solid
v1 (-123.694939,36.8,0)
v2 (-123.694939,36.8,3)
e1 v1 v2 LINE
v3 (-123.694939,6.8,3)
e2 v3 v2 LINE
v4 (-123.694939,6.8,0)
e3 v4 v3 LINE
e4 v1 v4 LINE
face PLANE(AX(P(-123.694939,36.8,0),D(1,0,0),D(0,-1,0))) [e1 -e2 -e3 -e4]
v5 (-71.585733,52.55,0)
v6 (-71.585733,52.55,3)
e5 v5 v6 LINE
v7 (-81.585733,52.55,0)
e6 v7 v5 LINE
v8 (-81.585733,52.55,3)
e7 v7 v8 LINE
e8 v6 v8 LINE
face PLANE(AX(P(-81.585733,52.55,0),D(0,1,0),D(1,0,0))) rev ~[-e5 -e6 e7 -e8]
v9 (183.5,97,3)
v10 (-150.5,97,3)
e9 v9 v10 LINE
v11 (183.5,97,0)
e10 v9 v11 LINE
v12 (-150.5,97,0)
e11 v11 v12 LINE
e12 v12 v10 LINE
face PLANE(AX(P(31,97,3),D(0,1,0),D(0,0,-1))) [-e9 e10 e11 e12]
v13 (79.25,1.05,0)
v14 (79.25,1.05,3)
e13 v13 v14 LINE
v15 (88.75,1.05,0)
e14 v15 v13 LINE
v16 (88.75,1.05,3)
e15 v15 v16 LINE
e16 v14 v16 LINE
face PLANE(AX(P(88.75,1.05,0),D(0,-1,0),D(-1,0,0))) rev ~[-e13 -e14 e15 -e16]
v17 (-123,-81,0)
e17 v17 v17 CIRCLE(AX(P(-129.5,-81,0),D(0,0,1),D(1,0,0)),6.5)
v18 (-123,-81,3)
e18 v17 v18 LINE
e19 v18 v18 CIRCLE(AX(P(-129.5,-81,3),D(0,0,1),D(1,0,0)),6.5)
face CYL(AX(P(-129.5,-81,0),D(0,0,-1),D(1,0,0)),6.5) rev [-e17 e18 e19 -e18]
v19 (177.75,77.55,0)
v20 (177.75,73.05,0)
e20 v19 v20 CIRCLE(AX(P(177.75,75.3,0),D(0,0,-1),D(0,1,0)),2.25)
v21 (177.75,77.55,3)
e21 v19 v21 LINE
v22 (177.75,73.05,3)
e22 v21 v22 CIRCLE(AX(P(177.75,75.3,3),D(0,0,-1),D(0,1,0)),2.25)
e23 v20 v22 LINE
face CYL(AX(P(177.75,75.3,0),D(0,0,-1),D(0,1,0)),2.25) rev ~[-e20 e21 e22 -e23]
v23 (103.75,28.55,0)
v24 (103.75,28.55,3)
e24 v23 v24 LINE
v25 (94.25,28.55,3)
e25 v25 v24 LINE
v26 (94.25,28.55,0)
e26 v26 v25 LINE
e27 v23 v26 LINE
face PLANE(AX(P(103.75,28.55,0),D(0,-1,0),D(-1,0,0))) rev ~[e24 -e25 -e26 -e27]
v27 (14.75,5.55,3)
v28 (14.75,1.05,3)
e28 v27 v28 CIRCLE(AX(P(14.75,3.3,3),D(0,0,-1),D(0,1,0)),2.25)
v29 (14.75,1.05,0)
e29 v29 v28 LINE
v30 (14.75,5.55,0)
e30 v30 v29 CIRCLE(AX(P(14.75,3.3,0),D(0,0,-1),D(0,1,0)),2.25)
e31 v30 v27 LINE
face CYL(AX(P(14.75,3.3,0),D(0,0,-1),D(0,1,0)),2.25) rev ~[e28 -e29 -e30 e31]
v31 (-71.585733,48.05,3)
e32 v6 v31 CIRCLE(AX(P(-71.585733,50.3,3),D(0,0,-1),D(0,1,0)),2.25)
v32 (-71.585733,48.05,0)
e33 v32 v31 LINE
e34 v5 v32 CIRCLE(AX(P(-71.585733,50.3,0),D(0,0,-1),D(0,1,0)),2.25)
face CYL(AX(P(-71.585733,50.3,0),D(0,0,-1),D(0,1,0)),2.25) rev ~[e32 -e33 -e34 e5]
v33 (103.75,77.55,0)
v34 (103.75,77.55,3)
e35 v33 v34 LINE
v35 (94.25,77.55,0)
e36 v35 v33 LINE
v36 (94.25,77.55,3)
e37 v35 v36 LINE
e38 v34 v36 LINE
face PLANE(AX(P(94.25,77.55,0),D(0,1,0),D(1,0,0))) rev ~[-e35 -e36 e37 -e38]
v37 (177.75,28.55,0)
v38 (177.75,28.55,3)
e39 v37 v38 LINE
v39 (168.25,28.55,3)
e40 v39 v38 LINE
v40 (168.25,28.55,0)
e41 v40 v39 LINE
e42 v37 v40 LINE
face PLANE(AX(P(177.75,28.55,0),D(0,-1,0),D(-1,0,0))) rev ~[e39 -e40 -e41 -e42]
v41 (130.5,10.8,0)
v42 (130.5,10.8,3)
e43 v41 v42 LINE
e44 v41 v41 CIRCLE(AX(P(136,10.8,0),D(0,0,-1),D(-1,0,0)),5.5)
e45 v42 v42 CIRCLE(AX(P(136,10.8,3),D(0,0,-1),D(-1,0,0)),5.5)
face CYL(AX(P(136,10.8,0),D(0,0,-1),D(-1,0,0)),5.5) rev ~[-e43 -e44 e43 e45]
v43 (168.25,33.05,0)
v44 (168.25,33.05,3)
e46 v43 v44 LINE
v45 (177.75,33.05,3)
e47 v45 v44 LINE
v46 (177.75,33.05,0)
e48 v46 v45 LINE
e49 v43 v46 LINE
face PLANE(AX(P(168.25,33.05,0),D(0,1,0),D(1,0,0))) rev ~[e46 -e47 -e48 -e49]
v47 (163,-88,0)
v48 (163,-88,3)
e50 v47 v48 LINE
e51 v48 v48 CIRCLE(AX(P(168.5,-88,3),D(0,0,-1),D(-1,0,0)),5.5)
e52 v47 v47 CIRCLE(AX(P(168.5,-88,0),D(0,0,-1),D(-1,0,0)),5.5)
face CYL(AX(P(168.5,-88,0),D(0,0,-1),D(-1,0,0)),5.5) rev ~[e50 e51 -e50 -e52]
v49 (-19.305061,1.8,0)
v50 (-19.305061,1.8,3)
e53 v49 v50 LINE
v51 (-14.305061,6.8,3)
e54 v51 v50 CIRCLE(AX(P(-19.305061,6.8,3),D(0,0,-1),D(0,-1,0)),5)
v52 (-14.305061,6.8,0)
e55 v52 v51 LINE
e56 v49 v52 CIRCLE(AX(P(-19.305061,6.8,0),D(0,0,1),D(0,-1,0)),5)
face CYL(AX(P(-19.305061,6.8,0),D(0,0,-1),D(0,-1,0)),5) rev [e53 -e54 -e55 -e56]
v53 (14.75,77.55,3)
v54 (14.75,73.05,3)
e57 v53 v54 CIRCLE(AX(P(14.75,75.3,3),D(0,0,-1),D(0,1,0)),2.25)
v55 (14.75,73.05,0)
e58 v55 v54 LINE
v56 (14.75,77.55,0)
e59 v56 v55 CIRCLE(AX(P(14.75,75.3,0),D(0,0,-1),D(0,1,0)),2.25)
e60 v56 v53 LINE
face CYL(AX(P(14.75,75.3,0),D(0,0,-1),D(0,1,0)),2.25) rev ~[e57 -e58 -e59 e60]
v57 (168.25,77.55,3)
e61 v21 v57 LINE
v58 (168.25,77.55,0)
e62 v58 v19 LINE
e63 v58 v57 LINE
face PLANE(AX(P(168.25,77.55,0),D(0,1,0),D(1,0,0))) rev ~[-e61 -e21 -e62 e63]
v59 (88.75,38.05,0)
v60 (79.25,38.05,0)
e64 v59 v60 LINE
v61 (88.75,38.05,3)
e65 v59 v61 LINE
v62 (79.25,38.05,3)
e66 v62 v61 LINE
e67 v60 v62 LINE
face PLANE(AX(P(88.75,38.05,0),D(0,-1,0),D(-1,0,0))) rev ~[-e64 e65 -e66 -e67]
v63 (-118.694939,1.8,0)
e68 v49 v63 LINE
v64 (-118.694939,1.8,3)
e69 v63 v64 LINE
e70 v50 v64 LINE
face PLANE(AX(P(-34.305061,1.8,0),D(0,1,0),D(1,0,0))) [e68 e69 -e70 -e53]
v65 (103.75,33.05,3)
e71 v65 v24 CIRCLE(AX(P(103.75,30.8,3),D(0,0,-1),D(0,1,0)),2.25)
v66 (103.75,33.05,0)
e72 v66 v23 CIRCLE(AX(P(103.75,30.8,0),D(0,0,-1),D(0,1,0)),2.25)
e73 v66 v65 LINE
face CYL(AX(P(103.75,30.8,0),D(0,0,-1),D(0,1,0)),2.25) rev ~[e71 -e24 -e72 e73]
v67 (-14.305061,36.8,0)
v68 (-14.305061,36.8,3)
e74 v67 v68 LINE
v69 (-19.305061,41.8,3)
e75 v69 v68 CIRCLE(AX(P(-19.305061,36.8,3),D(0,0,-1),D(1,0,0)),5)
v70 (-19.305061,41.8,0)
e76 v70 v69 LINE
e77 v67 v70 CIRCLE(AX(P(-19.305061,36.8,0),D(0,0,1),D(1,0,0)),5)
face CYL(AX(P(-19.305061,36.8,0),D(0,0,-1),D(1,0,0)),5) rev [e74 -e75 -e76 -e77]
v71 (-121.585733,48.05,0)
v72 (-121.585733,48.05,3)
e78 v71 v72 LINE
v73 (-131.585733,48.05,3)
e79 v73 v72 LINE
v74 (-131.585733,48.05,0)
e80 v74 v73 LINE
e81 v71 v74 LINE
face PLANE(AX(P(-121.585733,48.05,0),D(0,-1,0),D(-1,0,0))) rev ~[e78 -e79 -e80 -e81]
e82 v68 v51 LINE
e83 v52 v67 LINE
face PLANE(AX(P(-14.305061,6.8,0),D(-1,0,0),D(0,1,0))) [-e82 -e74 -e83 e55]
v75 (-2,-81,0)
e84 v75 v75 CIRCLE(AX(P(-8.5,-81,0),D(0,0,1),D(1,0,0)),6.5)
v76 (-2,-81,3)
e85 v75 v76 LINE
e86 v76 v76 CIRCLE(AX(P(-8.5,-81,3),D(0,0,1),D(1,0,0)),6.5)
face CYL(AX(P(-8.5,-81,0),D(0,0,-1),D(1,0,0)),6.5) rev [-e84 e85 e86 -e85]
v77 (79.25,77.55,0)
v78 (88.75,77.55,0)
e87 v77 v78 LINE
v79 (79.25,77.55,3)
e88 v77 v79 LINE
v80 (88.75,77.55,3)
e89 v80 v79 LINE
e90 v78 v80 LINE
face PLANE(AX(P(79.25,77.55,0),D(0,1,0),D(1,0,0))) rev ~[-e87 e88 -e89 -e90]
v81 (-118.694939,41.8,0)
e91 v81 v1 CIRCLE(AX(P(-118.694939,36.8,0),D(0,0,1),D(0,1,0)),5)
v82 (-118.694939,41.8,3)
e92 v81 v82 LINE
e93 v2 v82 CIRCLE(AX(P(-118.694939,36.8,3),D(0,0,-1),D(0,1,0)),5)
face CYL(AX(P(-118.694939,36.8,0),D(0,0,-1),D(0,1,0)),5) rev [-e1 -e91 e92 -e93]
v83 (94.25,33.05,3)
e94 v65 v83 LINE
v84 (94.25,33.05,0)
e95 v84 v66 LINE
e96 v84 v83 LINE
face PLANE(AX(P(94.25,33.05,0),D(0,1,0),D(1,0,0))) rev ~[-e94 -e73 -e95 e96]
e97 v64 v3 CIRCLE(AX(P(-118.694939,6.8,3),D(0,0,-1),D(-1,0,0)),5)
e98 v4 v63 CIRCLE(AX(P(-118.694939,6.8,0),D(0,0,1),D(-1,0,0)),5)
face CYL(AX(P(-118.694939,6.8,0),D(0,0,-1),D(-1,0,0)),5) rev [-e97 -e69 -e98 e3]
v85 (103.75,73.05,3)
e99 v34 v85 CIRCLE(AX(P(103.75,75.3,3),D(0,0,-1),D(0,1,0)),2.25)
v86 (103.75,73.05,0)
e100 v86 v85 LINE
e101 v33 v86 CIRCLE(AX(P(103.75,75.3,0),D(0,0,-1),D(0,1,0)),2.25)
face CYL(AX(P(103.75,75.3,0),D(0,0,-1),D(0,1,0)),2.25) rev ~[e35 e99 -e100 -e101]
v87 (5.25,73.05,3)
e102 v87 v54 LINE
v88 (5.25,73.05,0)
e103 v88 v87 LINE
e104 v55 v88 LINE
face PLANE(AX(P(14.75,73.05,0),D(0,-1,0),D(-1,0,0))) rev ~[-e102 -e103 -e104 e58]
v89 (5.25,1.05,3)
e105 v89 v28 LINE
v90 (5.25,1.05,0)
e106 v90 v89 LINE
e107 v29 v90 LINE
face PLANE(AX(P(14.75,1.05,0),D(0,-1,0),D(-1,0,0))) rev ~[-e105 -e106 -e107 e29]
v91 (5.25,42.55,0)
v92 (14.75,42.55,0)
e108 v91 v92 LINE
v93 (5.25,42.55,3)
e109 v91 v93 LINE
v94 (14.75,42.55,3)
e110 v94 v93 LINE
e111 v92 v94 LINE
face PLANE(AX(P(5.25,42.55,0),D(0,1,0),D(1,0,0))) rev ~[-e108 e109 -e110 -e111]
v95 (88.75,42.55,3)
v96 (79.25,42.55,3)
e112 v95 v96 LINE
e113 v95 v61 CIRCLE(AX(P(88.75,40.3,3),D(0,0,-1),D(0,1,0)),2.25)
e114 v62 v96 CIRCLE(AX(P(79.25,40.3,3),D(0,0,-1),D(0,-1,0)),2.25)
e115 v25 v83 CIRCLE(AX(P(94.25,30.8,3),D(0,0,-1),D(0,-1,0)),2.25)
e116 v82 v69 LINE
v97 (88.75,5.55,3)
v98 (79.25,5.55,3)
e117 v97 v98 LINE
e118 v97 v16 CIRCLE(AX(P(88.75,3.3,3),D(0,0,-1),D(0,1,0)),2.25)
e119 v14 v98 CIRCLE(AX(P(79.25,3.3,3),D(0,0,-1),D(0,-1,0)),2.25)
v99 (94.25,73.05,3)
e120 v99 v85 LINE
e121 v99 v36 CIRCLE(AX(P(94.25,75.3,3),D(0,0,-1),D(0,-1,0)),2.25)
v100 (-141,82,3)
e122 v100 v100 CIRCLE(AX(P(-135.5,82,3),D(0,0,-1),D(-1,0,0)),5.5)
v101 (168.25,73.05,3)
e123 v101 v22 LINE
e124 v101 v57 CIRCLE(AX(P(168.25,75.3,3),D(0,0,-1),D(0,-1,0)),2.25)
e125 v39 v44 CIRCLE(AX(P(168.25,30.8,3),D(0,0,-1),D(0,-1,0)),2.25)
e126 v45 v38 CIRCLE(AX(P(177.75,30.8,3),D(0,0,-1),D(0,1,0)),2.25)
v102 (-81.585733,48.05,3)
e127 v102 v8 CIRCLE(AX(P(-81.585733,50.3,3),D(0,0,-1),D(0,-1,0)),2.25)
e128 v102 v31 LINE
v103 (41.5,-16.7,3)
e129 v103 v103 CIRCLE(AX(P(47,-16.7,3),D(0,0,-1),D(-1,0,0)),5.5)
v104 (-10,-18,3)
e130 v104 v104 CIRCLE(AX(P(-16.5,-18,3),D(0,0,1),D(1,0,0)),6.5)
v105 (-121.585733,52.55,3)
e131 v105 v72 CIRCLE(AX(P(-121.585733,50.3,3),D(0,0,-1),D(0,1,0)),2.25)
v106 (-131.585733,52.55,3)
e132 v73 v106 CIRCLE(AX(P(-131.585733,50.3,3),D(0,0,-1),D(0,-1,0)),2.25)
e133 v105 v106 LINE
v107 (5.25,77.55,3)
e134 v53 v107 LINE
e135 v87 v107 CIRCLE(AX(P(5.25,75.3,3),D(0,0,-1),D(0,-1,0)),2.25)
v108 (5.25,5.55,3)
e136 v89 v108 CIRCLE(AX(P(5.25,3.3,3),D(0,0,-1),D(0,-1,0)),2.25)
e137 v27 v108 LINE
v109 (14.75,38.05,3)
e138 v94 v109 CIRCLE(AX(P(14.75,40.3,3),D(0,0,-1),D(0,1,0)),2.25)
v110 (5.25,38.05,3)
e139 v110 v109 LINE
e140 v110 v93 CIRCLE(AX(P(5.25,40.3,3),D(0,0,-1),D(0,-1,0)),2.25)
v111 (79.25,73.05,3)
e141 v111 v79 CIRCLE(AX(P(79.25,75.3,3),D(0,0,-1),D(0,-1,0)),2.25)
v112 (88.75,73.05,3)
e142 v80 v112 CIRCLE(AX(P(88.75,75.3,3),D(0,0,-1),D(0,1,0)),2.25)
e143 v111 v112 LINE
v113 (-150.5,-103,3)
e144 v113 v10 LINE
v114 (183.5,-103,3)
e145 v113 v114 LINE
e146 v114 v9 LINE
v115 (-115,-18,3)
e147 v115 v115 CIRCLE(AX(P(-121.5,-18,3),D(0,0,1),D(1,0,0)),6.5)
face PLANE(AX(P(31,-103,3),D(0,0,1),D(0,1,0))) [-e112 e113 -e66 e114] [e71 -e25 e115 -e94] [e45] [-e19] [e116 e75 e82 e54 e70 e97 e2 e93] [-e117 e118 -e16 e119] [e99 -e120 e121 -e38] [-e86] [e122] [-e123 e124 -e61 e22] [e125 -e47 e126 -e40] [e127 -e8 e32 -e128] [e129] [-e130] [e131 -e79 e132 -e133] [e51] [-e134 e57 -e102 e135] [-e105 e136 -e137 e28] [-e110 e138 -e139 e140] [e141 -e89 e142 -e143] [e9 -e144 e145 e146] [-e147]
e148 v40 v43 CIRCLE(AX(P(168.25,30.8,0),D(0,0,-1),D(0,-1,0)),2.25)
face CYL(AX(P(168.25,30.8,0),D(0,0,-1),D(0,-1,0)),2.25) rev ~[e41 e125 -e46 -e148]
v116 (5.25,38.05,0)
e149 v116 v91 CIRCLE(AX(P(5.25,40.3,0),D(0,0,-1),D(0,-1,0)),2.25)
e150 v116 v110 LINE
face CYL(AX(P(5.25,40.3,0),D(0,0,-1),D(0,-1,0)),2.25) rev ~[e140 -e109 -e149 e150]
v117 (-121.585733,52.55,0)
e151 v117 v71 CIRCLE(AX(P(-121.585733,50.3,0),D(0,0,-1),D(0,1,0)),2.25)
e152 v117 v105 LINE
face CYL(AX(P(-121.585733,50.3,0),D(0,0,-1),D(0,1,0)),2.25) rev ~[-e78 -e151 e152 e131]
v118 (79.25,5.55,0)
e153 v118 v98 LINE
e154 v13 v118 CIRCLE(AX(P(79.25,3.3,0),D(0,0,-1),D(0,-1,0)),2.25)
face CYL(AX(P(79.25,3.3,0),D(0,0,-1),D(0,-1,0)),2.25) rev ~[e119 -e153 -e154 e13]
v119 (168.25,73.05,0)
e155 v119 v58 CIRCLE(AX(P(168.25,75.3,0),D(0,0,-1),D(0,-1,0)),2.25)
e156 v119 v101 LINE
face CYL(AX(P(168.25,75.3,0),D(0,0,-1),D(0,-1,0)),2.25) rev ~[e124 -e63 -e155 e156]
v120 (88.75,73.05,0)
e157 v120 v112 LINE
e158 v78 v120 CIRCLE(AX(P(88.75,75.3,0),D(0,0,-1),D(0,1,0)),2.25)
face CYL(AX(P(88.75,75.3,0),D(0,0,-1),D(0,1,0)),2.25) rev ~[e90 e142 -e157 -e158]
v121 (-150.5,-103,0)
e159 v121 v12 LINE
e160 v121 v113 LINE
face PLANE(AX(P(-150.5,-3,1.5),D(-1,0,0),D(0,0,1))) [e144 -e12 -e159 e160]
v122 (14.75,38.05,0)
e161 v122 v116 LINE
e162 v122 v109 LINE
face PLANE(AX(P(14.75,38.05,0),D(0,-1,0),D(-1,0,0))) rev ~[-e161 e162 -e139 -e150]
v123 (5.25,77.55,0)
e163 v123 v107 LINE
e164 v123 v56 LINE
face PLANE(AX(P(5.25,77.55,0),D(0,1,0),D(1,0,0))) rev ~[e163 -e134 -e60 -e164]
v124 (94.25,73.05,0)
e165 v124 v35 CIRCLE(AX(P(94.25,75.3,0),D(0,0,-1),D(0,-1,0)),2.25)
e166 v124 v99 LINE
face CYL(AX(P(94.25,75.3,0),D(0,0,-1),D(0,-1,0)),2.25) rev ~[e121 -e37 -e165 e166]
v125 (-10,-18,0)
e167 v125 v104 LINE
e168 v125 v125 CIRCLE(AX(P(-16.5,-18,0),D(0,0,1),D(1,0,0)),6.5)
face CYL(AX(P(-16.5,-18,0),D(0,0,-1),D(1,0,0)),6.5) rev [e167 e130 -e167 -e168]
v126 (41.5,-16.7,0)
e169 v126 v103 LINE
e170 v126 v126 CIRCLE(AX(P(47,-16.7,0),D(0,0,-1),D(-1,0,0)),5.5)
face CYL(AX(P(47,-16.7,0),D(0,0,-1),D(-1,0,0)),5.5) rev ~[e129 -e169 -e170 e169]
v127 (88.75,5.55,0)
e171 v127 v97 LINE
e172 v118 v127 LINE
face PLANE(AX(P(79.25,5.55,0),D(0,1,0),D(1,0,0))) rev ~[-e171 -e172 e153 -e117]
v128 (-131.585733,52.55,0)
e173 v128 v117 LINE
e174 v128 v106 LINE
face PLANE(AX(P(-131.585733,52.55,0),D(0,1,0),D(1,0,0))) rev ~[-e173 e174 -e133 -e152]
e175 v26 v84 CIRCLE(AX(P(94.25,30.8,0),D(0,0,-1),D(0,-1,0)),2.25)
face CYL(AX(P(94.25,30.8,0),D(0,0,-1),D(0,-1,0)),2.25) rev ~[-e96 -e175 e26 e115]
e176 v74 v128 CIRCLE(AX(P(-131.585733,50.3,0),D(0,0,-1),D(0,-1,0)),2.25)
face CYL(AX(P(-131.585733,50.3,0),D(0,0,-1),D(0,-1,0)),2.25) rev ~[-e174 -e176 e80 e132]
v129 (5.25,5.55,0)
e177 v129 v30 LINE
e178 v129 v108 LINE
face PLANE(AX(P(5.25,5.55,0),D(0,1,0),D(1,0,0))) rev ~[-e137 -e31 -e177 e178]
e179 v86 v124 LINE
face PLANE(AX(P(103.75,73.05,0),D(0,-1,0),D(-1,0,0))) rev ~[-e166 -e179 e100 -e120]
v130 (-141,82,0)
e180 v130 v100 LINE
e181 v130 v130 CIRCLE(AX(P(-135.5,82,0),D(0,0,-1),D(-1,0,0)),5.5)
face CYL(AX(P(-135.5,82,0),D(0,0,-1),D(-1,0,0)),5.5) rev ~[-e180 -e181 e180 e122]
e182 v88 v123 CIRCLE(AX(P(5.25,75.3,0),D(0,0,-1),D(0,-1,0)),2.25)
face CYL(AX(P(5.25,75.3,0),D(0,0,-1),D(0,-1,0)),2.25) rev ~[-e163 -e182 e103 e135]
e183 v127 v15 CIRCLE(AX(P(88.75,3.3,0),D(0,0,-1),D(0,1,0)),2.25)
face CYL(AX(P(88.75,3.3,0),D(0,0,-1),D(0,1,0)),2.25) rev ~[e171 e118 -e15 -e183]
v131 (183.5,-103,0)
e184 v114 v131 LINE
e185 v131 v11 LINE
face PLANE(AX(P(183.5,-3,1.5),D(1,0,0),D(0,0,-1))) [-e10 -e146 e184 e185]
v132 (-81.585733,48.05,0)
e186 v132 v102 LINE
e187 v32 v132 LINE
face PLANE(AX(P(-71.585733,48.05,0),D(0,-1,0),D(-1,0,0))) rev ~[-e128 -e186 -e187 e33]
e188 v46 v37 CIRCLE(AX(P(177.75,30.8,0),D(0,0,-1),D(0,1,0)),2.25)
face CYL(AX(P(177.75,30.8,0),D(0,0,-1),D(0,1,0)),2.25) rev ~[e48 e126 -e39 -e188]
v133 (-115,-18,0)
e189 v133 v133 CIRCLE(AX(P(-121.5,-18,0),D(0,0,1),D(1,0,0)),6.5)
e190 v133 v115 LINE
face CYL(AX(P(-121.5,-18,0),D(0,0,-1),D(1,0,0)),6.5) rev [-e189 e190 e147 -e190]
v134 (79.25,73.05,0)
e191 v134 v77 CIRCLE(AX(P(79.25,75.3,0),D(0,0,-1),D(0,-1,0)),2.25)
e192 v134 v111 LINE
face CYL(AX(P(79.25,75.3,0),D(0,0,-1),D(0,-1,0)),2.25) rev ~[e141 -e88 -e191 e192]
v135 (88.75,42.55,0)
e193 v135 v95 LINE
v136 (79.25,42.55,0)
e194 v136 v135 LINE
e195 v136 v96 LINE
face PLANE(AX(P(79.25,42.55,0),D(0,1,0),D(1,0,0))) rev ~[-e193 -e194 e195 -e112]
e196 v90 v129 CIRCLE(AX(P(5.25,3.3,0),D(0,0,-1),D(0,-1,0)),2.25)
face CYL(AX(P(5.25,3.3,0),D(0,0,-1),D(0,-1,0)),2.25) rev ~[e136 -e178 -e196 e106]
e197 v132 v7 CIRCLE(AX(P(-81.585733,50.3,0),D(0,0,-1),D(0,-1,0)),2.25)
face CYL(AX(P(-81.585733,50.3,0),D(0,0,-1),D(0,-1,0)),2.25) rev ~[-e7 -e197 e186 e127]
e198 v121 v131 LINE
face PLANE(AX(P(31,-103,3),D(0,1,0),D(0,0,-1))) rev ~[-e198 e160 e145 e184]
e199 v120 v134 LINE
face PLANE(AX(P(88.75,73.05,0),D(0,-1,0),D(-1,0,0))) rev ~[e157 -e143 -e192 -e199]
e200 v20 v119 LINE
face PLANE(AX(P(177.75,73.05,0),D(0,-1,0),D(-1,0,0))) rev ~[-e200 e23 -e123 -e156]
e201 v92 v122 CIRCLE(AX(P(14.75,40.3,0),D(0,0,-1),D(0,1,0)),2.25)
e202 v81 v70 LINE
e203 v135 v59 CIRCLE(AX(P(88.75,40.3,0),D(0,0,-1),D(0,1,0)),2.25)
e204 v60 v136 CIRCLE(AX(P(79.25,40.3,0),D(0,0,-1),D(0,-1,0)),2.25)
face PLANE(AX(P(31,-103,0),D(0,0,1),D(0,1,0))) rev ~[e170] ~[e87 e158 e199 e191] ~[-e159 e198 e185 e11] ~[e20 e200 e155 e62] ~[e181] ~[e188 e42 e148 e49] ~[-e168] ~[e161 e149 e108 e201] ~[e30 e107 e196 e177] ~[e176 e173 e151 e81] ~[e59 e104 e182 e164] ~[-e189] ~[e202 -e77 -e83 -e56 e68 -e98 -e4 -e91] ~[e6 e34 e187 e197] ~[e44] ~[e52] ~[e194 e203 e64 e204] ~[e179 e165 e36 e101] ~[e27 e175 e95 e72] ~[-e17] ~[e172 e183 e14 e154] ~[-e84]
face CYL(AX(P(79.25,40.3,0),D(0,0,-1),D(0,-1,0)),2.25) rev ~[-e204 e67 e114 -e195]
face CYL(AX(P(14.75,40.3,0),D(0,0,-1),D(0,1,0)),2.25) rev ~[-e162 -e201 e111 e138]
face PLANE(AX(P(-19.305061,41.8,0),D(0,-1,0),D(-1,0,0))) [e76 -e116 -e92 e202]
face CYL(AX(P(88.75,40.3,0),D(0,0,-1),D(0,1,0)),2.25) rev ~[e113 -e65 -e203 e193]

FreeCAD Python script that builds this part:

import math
import FreeCAD as App
import Part
import Sketcher
from FreeCAD import Vector


def add_polygon(sketch, points):
    """Adds a closed chain of lines whose ends are joined by coincident constraints."""
    first, n = sketch.GeometryCount, len(points)
    for a, b in zip(points, points[1:] + points[:1]):
        sketch.addGeometry(Part.LineSegment(App.Vector(*a, 0), App.Vector(*b, 0)), False)
    for i in range(n):
        sketch.addConstraint(Sketcher.Constraint("Coincident", first + i, 2, first + (i + 1) % n, 1))

doc = App.newDocument("Part")
body = doc.addObject("PartDesign::Body", "Body")

# Sketch on XY plane
sketch1 = doc.addObject("Sketcher::SketchObject", "Sketch")
body.addObject(sketch1)
sketch1.AttachmentSupport = (doc.XY_Plane, [""])
sketch1.MapMode = "FlatFace"
add_polygon(sketch1, [(-169, 97), (-169, -103), (31, -103), (31, 97)])  # lines 0-3
sketch1.addGeometry(Part.Circle(Vector(-130, -81, 0), Vector(0, 0, 1), 6), False)  # 4
sketch1.addGeometry(Part.Circle(Vector(-8, -81, 0), Vector(0, 0, 1), 6), False)  # 5
sketch1.addGeometry(Part.Circle(Vector(-122, -18, 0), Vector(0, 0, 1), 6), False)  # 6
sketch1.addGeometry(Part.Circle(Vector(-16, -18, 0), Vector(0, 0, 1), 6), False)  # 7
sketch1.addConstraint(Sketcher.Constraint("Vertical", 0))
sketch1.addConstraint(Sketcher.Constraint("Horizontal", 1))
sketch1.addConstraint(Sketcher.Constraint("Vertical", 2))
sketch1.addConstraint(Sketcher.Constraint("Horizontal", 3))
sketch1.addConstraint(Sketcher.Constraint("Equal", 4, 5))
sketch1.addConstraint(Sketcher.Constraint("Equal", 5, 6))
sketch1.addConstraint(Sketcher.Constraint("Equal", 6, 7))
sketch1.addConstraint(Sketcher.Constraint("Horizontal", 4, 3, 5, 3))
sketch1.addConstraint(Sketcher.Constraint("Horizontal", 6, 3, 7, 3))
sketch1.addConstraint(Sketcher.Constraint("Equal", 3, 0))
sketch1.addConstraint(Sketcher.Constraint("Diameter", 4, 13.0))
sketch1.addConstraint(Sketcher.Constraint("DistanceX", 1, 1, 1, 2, 200.0))
sketch1.addConstraint(Sketcher.Constraint("DistanceY", 4, 3, -1, 1, 81.0))
sketch1.addConstraint(Sketcher.Constraint("DistanceY", 6, 3, -1, 1, 18.0))
sketch1.addConstraint(Sketcher.Constraint("DistanceX", 0, 2, -1, 1, 169.0))
sketch1.addConstraint(Sketcher.Constraint("DistanceY", 0, 2, -1, 1, 103.0))
sketch1.addConstraint(Sketcher.Constraint("DistanceX", 4, 3, 5, 3, 121.0))
sketch1.addConstraint(Sketcher.Constraint("DistanceX", 4, 3, 6, 3, 8.0))
sketch1.addConstraint(Sketcher.Constraint("DistanceX", 7, 3, 5, 3, 8.0))
sketch1.addConstraint(Sketcher.Constraint("DistanceX", 4, 3, -1, 1, 129.5))
pad1 = doc.addObject("PartDesign::Pad", "Pad")
body.addObject(pad1)
pad1.Profile = sketch1
pad1.Length = 3

# Sketch on YZ plane
sketch2 = doc.addObject("Sketcher::SketchObject", "Sketch001")
body.addObject(sketch2)
sketch2.AttachmentSupport = (doc.YZ_Plane, [""])
sketch2.MapMode = "FlatFace"
sketch2.AttachmentOffset = App.Placement(Vector(0, 0, 31), App.Rotation())
add_polygon(sketch2, [(97, 3), (-103, 3), (-103, 0), (97, 0)])  # lines 0-3
sketch2.addConstraint(Sketcher.Constraint("Horizontal", 0))
sketch2.addConstraint(Sketcher.Constraint("Vertical", 1))
sketch2.addConstraint(Sketcher.Constraint("Horizontal", 2))
sketch2.addConstraint(Sketcher.Constraint("Vertical", 3))
sketch2.addConstraint(Sketcher.Constraint("PointOnObject", 1, 2, -1))
sketch2.addConstraint(Sketcher.Constraint("DistanceX", 0, 2, 0, 1, 200.0))
sketch2.addConstraint(Sketcher.Constraint("DistanceY", 1, 2, 1, 1, 3.0))
sketch2.addConstraint(Sketcher.Constraint("DistanceX", 0, 2, -1, 1, 103.0))
pad2 = doc.addObject("PartDesign::Pad", "Pad001")
body.addObject(pad2)
pad2.Profile = sketch2
pad2.Length = 152.5

# Sketch on YZ plane
sketch3 = doc.addObject("Sketcher::SketchObject", "Sketch002")
body.addObject(sketch3)
sketch3.AttachmentSupport = (doc.YZ_Plane, [""])
sketch3.MapMode = "FlatFace"
sketch3.AttachmentOffset = App.Placement(Vector(0, 0, -169), App.Rotation())
add_polygon(sketch3, [(97, 0), (-103, 0), (-103, 3), (97, 3)])  # lines 0-3
sketch3.addConstraint(Sketcher.Constraint("Horizontal", 0))
sketch3.addConstraint(Sketcher.Constraint("Vertical", 1))
sketch3.addConstraint(Sketcher.Constraint("Horizontal", 2))
sketch3.addConstraint(Sketcher.Constraint("Vertical", 3))
sketch3.addConstraint(Sketcher.Constraint("PointOnObject", 0, 2, -1))
sketch3.addConstraint(Sketcher.Constraint("DistanceX", 0, 2, 0, 1, 200.0))
sketch3.addConstraint(Sketcher.Constraint("DistanceY", 1, 1, 1, 2, 3.0))
sketch3.addConstraint(Sketcher.Constraint("DistanceX", 0, 2, -1, 1, 103.0))
pocket1 = doc.addObject("PartDesign::Pocket", "Pocket")
body.addObject(pocket1)
pocket1.Profile = sketch3
pocket1.Length = 18.5
pocket1.Reversed = True

# Sketch on XY plane
sketch4 = doc.addObject("Sketcher::SketchObject", "Sketch003")
body.addObject(sketch4)
sketch4.AttachmentSupport = (doc.XY_Plane, [""])
sketch4.MapMode = "FlatFace"
sketch4.addGeometry(Part.ArcOfCircle(Part.Circle(Vector(-19, 37, 0), Vector(0, 0, 1), 5), math.radians(0), math.radians(90)), False)
sketch4.addGeometry(Part.LineSegment(Vector(-14, 37, 0), Vector(-14, 7, 0)), False)
sketch4.addGeometry(Part.ArcOfCircle(Part.Circle(Vector(-19, 7, 0), Vector(0, 0, 1), 5), math.radians(-90), math.radians(0)), False)
sketch4.addGeometry(Part.LineSegment(Vector(-19, 2, 0), Vector(-119, 2, 0)), False)
sketch4.addGeometry(Part.ArcOfCircle(Part.Circle(Vector(-119, 7, 0), Vector(0, 0, 1), 5), math.radians(180), math.radians(270)), False)
sketch4.addGeometry(Part.LineSegment(Vector(-124, 7, 0), Vector(-124, 37, 0)), False)
sketch4.addGeometry(Part.ArcOfCircle(Part.Circle(Vector(-119, 37, 0), Vector(0, 0, 1), 5), math.radians(90), math.radians(180)), False)
sketch4.addGeometry(Part.LineSegment(Vector(-119, 42, 0), Vector(-19, 42, 0)), False)
sketch4.addConstraint(Sketcher.Constraint("Tangent", 0, 1, 1, 1))
sketch4.addConstraint(Sketcher.Constraint("Tangent", 1, 2, 2, 2))
sketch4.addConstraint(Sketcher.Constraint("Tangent", 2, 1, 3, 1))
sketch4.addConstraint(Sketcher.Constraint("Tangent", 3, 2, 4, 2))
sketch4.addConstraint(Sketcher.Constraint("Tangent", 4, 1, 5, 1))
sketch4.addConstraint(Sketcher.Constraint("Tangent", 5, 2, 6, 2))
sketch4.addConstraint(Sketcher.Constraint("Tangent", 6, 1, 7, 1))
sketch4.addConstraint(Sketcher.Constraint("Tangent", 7, 2, 0, 2))
sketch4.addConstraint(Sketcher.Constraint("Vertical", 1))
sketch4.addConstraint(Sketcher.Constraint("Horizontal", 3))
sketch4.addConstraint(Sketcher.Constraint("Vertical", 5))
sketch4.addConstraint(Sketcher.Constraint("Horizontal", 7))
sketch4.addConstraint(Sketcher.Constraint("Equal", 0, 2))
sketch4.addConstraint(Sketcher.Constraint("Equal", 2, 4))
sketch4.addConstraint(Sketcher.Constraint("Equal", 4, 6))
sketch4.addConstraint(Sketcher.Constraint("Radius", 0, 5.0))
sketch4.addConstraint(Sketcher.Constraint("DistanceY", 1, 2, 1, 1, 30.0))
sketch4.addConstraint(Sketcher.Constraint("DistanceY", -1, 1, 0, 3, 36.8))
sketch4.addConstraint(Sketcher.Constraint("DistanceX", 3, 2, 3, 1, 99.389878))
sketch4.addConstraint(Sketcher.Constraint("DistanceX", 0, 3, -1, 1, 19.305061))
pocket2 = doc.addObject("PartDesign::Pocket", "Pocket001")
body.addObject(pocket2)
pocket2.Profile = sketch4
pocket2.Length = 211.452489
pocket2.Reversed = True

# Sketch on XY plane
sketch5 = doc.addObject("Sketcher::SketchObject", "Sketch004")
body.addObject(sketch5)
sketch5.AttachmentSupport = (doc.XY_Plane, [""])
sketch5.MapMode = "FlatFace"
sketch5.addGeometry(Part.ArcOfCircle(Part.Circle(Vector(5.2, 3.3, 0), Vector(0, 0, 1), 2.2), math.radians(90), math.radians(270)), False)
sketch5.addGeometry(Part.LineSegment(Vector(5.2, 5.5, 0), Vector(14.8, 5.5, 0)), False)
sketch5.addGeometry(Part.ArcOfCircle(Part.Circle(Vector(14.8, 3.3, 0), Vector(0, 0, 1), 2.2), math.radians(-90), math.radians(90)), False)
sketch5.addGeometry(Part.LineSegment(Vector(14.8, 1.1, 0), Vector(5.2, 1.1, 0)), False)
sketch5.addGeometry(Part.ArcOfCircle(Part.Circle(Vector(5.2, 40.3, 0), Vector(0, 0, 1), 2.2), math.radians(90), math.radians(270)), False)
sketch5.addGeometry(Part.LineSegment(Vector(5.2, 42.5, 0), Vector(14.8, 42.5, 0)), False)
sketch5.addGeometry(Part.ArcOfCircle(Part.Circle(Vector(14.8, 40.3, 0), Vector(0, 0, 1), 2.2), math.radians(-90), math.radians(90)), False)
sketch5.addGeometry(Part.LineSegment(Vector(14.8, 38, 0), Vector(5.2, 38, 0)), False)
sketch5.addGeometry(Part.ArcOfCircle(Part.Circle(Vector(5.2, 75.3, 0), Vector(0, 0, 1), 2.2), math.radians(90), math.radians(270)), False)
sketch5.addGeometry(Part.LineSegment(Vector(5.2, 77.5, 0), Vector(14.8, 77.5, 0)), False)
sketch5.addGeometry(Part.ArcOfCircle(Part.Circle(Vector(14.8, 75.3, 0), Vector(0, 0, 1), 2.2), math.radians(-90), math.radians(90)), False)
sketch5.addGeometry(Part.LineSegment(Vector(14.8, 73, 0), Vector(5.2, 73, 0)), False)
sketch5.addGeometry(Part.LineSegment(Vector(88.8, 73, 0), Vector(79.2, 73, 0)), False)
sketch5.addGeometry(Part.ArcOfCircle(Part.Circle(Vector(79.2, 75.3, 0), Vector(0, 0, 1), 2.2), math.radians(90), math.radians(270)), False)
sketch5.addGeometry(Part.LineSegment(Vector(79.2, 77.5, 0), Vector(88.8, 77.5, 0)), False)
sketch5.addGeometry(Part.ArcOfCircle(Part.Circle(Vector(88.8, 75.3, 0), Vector(0, 0, 1), 2.2), math.radians(-90), math.radians(90)), False)
sketch5.addGeometry(Part.ArcOfCircle(Part.Circle(Vector(94.2, 75.3, 0), Vector(0, 0, 1), 2.2), math.radians(90), math.radians(270)), False)
sketch5.addGeometry(Part.LineSegment(Vector(94.2, 77.5, 0), Vector(103.8, 77.5, 0)), False)
sketch5.addGeometry(Part.ArcOfCircle(Part.Circle(Vector(103.8, 75.3, 0), Vector(0, 0, 1), 2.2), math.radians(-90), math.radians(90)), False)
sketch5.addGeometry(Part.LineSegment(Vector(103.8, 73, 0), Vector(94.2, 73, 0)), False)
sketch5.addGeometry(Part.ArcOfCircle(Part.Circle(Vector(79.2, 40.3, 0), Vector(0, 0, 1), 2.2), math.radians(90), math.radians(270)), False)
sketch5.addGeometry(Part.LineSegment(Vector(79.2, 42.5, 0), Vector(88.8, 42.5, 0)), False)
sketch5.addGeometry(Part.ArcOfCircle(Part.Circle(Vector(88.8, 40.3, 0), Vector(0, 0, 1), 2.2), math.radians(-90), math.radians(90)), False)
sketch5.addGeometry(Part.LineSegment(Vector(88.8, 38, 0), Vector(79.2, 38, 0)), False)
sketch5.addGeometry(Part.ArcOfCircle(Part.Circle(Vector(79.2, 3.3, 0), Vector(0, 0, 1), 2.2), math.radians(90), math.radians(270)), False)
sketch5.addGeometry(Part.LineSegment(Vector(79.2, 5.5, 0), Vector(88.8, 5.5, 0)), False)
sketch5.addGeometry(Part.ArcOfCircle(Part.Circle(Vector(88.8, 3.3, 0), Vector(0, 0, 1), 2.2), math.radians(-90), math.radians(90)), False)
sketch5.addGeometry(Part.LineSegment(Vector(88.8, 1.1, 0), Vector(79.2, 1.1, 0)), False)
sketch5.addGeometry(Part.ArcOfCircle(Part.Circle(Vector(94.2, 30.8, 0), Vector(0, 0, 1), 2.2), math.radians(90), math.radians(270)), False)
sketch5.addGeometry(Part.LineSegment(Vector(94.2, 33, 0), Vector(103.8, 33, 0)), False)
sketch5.addGeometry(Part.ArcOfCircle(Part.Circle(Vector(103.8, 30.8, 0), Vector(0, 0, 1), 2.2), math.radians(-90), math.radians(90)), False)
sketch5.addGeometry(Part.LineSegment(Vector(103.8, 28.6, 0), Vector(94.2, 28.6, 0)), False)
sketch5.addGeometry(Part.ArcOfCircle(Part.Circle(Vector(168.2, 30.8, 0), Vector(0, 0, 1), 2.2), math.radians(90), math.radians(270)), False)
sketch5.addGeometry(Part.LineSegment(Vector(168.2, 33, 0), Vector(177.8, 33, 0)), False)
sketch5.addGeometry(Part.ArcOfCircle(Part.Circle(Vector(177.8, 30.8, 0), Vector(0, 0, 1), 2.2), math.radians(-90), math.radians(90)), False)
sketch5.addGeometry(Part.LineSegment(Vector(177.8, 28.6, 0), Vector(168.2, 28.6, 0)), False)
sketch5.addGeometry(Part.ArcOfCircle(Part.Circle(Vector(168.2, 75.3, 0), Vector(0, 0, 1), 2.2), math.radians(90), math.radians(270)), False)
sketch5.addGeometry(Part.LineSegment(Vector(168.2, 77.5, 0), Vector(177.8, 77.5, 0)), False)
sketch5.addGeometry(Part.ArcOfCircle(Part.Circle(Vector(177.8, 75.3, 0), Vector(0, 0, 1), 2.2), math.radians(-90), math.radians(90)), False)
sketch5.addGeometry(Part.LineSegment(Vector(177.8, 73, 0), Vector(168.2, 73, 0)), False)
sketch5.addConstraint(Sketcher.Constraint("Tangent", 0, 1, 1, 1))
sketch5.addConstraint(Sketcher.Constraint("Tangent", 1, 2, 2, 2))
sketch5.addConstraint(Sketcher.Constraint("Tangent", 2, 1, 3, 1))
sketch5.addConstraint(Sketcher.Constraint("Tangent", 3, 2, 0, 2))
sketch5.addConstraint(Sketcher.Constraint("Tangent", 4, 1, 5, 1))
sketch5.addConstraint(Sketcher.Constraint("Tangent", 5, 2, 6, 2))
sketch5.addConstraint(Sketcher.Constraint("Tangent", 6, 1, 7, 1))
sketch5.addConstraint(Sketcher.Constraint("Tangent", 7, 2, 4, 2))
sketch5.addConstraint(Sketcher.Constraint("Tangent", 8, 1, 9, 1))
sketch5.addConstraint(Sketcher.Constraint("Tangent", 9, 2, 10, 2))
sketch5.addConstraint(Sketcher.Constraint("Tangent", 10, 1, 11, 1))
sketch5.addConstraint(Sketcher.Constraint("Tangent", 11, 2, 8, 2))
sketch5.addConstraint(Sketcher.Constraint("Tangent", 12, 2, 13, 2))
sketch5.addConstraint(Sketcher.Constraint("Tangent", 13, 1, 14, 1))
sketch5.addConstraint(Sketcher.Constraint("Tangent", 14, 2, 15, 2))
sketch5.addConstraint(Sketcher.Constraint("Tangent", 15, 1, 12, 1))
sketch5.addConstraint(Sketcher.Constraint("Tangent", 16, 1, 17, 1))
sketch5.addConstraint(Sketcher.Constraint("Tangent", 17, 2, 18, 2))
sketch5.addConstraint(Sketcher.Constraint("Tangent", 18, 1, 19, 1))
sketch5.addConstraint(Sketcher.Constraint("Tangent", 19, 2, 16, 2))
sketch5.addConstraint(Sketcher.Constraint("Tangent", 20, 1, 21, 1))
sketch5.addConstraint(Sketcher.Constraint("Tangent", 21, 2, 22, 2))
sketch5.addConstraint(Sketcher.Constraint("Tangent", 22, 1, 23, 1))
sketch5.addConstraint(Sketcher.Constraint("Tangent", 23, 2, 20, 2))
sketch5.addConstraint(Sketcher.Constraint("Tangent", 24, 1, 25, 1))
sketch5.addConstraint(Sketcher.Constraint("Tangent", 25, 2, 26, 2))
sketch5.addConstraint(Sketcher.Constraint("Tangent", 26, 1, 27, 1))
sketch5.addConstraint(Sketcher.Constraint("Tangent", 27, 2, 24, 2))
sketch5.addConstraint(Sketcher.Constraint("Tangent", 28, 1, 29, 1))
sketch5.addConstraint(Sketcher.Constraint("Tangent", 29, 2, 30, 2))
sketch5.addConstraint(Sketcher.Constraint("Tangent", 30, 1, 31, 1))
sketch5.addConstraint(Sketcher.Constraint("Tangent", 31, 2, 28, 2))
sketch5.addConstraint(Sketcher.Constraint("Tangent", 32, 1, 33, 1))
sketch5.addConstraint(Sketcher.Constraint("Tangent", 33, 2, 34, 2))
sketch5.addConstraint(Sketcher.Constraint("Tangent", 34, 1, 35, 1))
sketch5.addConstraint(Sketcher.Constraint("Tangent", 35, 2, 32, 2))
sketch5.addConstraint(Sketcher.Constraint("Tangent", 36, 1, 37, 1))
sketch5.addConstraint(Sketcher.Constraint("Tangent", 37, 2, 38, 2))
sketch5.addConstraint(Sketcher.Constraint("Tangent", 38, 1, 39, 1))
sketch5.addConstraint(Sketcher.Constraint("Tangent", 39, 2, 36, 2))
sketch5.addConstraint(Sketcher.Constraint("Horizontal", 1))
sketch5.addConstraint(Sketcher.Constraint("Horizontal", 3))
sketch5.addConstraint(Sketcher.Constraint("Horizontal", 5))
sketch5.addConstraint(Sketcher.Constraint("Horizontal", 7))
sketch5.addConstraint(Sketcher.Constraint("Horizontal", 9))
sketch5.addConstraint(Sketcher.Constraint("Horizontal", 11))
sketch5.addConstraint(Sketcher.Constraint("Horizontal", 12))
sketch5.addConstraint(Sketcher.Constraint("Horizontal", 14))
sketch5.addConstraint(Sketcher.Constraint("Horizontal", 17))
sketch5.addConstraint(Sketcher.Constraint("Horizontal", 19))
sketch5.addConstraint(Sketcher.Constraint("Horizontal", 21))
sketch5.addConstraint(Sketcher.Constraint("Horizontal", 23))
sketch5.addConstraint(Sketcher.Constraint("Horizontal", 25))
sketch5.addConstraint(Sketcher.Constraint("Horizontal", 27))
sketch5.addConstraint(Sketcher.Constraint("Horizontal", 29))
sketch5.addConstraint(Sketcher.Constraint("Horizontal", 31))
sketch5.addConstraint(Sketcher.Constraint("Horizontal", 33))
sketch5.addConstraint(Sketcher.Constraint("Horizontal", 35))
sketch5.addConstraint(Sketcher.Constraint("Horizontal", 37))
sketch5.addConstraint(Sketcher.Constraint("Horizontal", 39))
sketch5.addConstraint(Sketcher.Constraint("Equal", 2, 4))
sketch5.addConstraint(Sketcher.Constraint("Equal", 6, 8))
sketch5.addConstraint(Sketcher.Constraint("Equal", 10, 13))
sketch5.addConstraint(Sketcher.Constraint("Equal", 15, 16))
sketch5.addConstraint(Sketcher.Constraint("Equal", 18, 20))
sketch5.addConstraint(Sketcher.Constraint("Equal", 22, 24))
sketch5.addConstraint(Sketcher.Constraint("Equal", 26, 28))
sketch5.addConstraint(Sketcher.Constraint("Equal", 30, 32))
sketch5.addConstraint(Sketcher.Constraint("Equal", 34, 36))
sketch5.addConstraint(Sketcher.Constraint("Horizontal", 10, 3, 13, 3))
sketch5.addConstraint(Sketcher.Constraint("Horizontal", 15, 3, 16, 3))
sketch5.addConstraint(Sketcher.Constraint("Horizontal", 6, 3, 20, 3))
sketch5.addConstraint(Sketcher.Constraint("Horizontal", 2, 3, 24, 3))
sketch5.addConstraint(Sketcher.Constraint("Horizontal", 30, 3, 32, 3))
sketch5.addConstraint(Sketcher.Constraint("Horizontal", 18, 3, 36, 3))
sketch5.addConstraint(Sketcher.Constraint("Vertical", 0, 3, 4, 3))
sketch5.addConstraint(Sketcher.Constraint("Vertical", 2, 3, 6, 3))
sketch5.addConstraint(Sketcher.Constraint("Vertical", 4, 3, 8, 3))
sketch5.addConstraint(Sketcher.Constraint("Vertical", 6, 3, 10, 3))
sketch5.addConstraint(Sketcher.Constraint("Vertical", 13, 3, 20, 3))
sketch5.addConstraint(Sketcher.Constraint("Vertical", 15, 3, 22, 3))
sketch5.addConstraint(Sketcher.Constraint("Vertical", 20, 3, 24, 3))
sketch5.addConstraint(Sketcher.Constraint("Vertical", 22, 3, 26, 3))
sketch5.addConstraint(Sketcher.Constraint("Vertical", 16, 3, 28, 3))
sketch5.addConstraint(Sketcher.Constraint("Vertical", 18, 3, 30, 3))
sketch5.addConstraint(Sketcher.Constraint("Vertical", 32, 3, 36, 3))
sketch5.addConstraint(Sketcher.Constraint("Vertical", 34, 3, 38, 3))
sketch5.addConstraint(Sketcher.Constraint("Equal", 11, 12))
sketch5.addConstraint(Sketcher.Constraint("Equal", 14, 17))
sketch5.addConstraint(Sketcher.Constraint("Equal", 31, 33))
sketch5.addConstraint(Sketcher.Constraint("Radius", 0, 2.25))
sketch5.addConstraint(Sketcher.Constraint("DistanceX", 1, 1, 1, 2, 9.5))
sketch5.addConstraint(Sketcher.Constraint("DistanceY", 0, 3, 4, 3, 37.0))
sketch5.addConstraint(Sketcher.Constraint("DistanceY", 4, 3, 8, 3, 35.0))
sketch5.addConstraint(Sketcher.Constraint("DistanceX", 8, 3, 13, 3, 74.0))
sketch5.addConstraint(Sketcher.Constraint("DistanceX", 13, 3, 16, 3, 15.0))
sketch5.addConstraint(Sketcher.Constraint("DistanceX", 28, 3, 32, 3, 74.0))
sketch5.addConstraint(Sketcher.Constraint("DistanceY", 28, 1, 22, 1, 5.0))
sketch5.addConstraint(Sketcher.Constraint("DistanceY", -1, 1, 0, 3, 3.3))
sketch5.addConstraint(Sketcher.Constraint("DistanceX", -1, 1, 0, 3, 5.25))
pocket3 = doc.addObject("PartDesign::Pocket", "Pocket002")
body.addObject(pocket3)
pocket3.Profile = sketch5
pocket3.Type = "ThroughAll"
pocket3.Reversed = True

# Sketch on XY plane
sketch6 = doc.addObject("Sketcher::SketchObject", "Sketch005")
body.addObject(sketch6)
sketch6.AttachmentSupport = (doc.XY_Plane, [""])
sketch6.MapMode = "FlatFace"
sketch6.addGeometry(Part.ArcOfCircle(Part.Circle(Vector(-131.6, 50.3, 0), Vector(0, 0, 1), 2.2), math.radians(90), math.radians(270)), False)
sketch6.addGeometry(Part.LineSegment(Vector(-131.6, 52.5, 0), Vector(-121.6, 52.5, 0)), False)
sketch6.addGeometry(Part.ArcOfCircle(Part.Circle(Vector(-121.6, 50.3, 0), Vector(0, 0, 1), 2.2), math.radians(-90), math.radians(90)), False)
sketch6.addGeometry(Part.LineSegment(Vector(-121.6, 48, 0), Vector(-131.6, 48, 0)), False)
sketch6.addGeometry(Part.ArcOfCircle(Part.Circle(Vector(-81.6, 50.3, 0), Vector(0, 0, 1), 2.2), math.radians(90), math.radians(270)), False)
sketch6.addGeometry(Part.LineSegment(Vector(-81.6, 52.5, 0), Vector(-71.6, 52.5, 0)), False)
sketch6.addGeometry(Part.ArcOfCircle(Part.Circle(Vector(-71.6, 50.3, 0), Vector(0, 0, 1), 2.2), math.radians(-90), math.radians(90)), False)
sketch6.addGeometry(Part.LineSegment(Vector(-71.6, 48, 0), Vector(-81.6, 48, 0)), False)
sketch6.addConstraint(Sketcher.Constraint("Tangent", 0, 1, 1, 1))
sketch6.addConstraint(Sketcher.Constraint("Tangent", 1, 2, 2, 2))
sketch6.addConstraint(Sketcher.Constraint("Tangent", 2, 1, 3, 1))
sketch6.addConstraint(Sketcher.Constraint("Tangent", 3, 2, 0, 2))
sketch6.addConstraint(Sketcher.Constraint("Tangent", 4, 1, 5, 1))
sketch6.addConstraint(Sketcher.Constraint("Tangent", 5, 2, 6, 2))
sketch6.addConstraint(Sketcher.Constraint("Tangent", 6, 1, 7, 1))
sketch6.addConstraint(Sketcher.Constraint("Tangent", 7, 2, 4, 2))
sketch6.addConstraint(Sketcher.Constraint("Horizontal", 1))
sketch6.addConstraint(Sketcher.Constraint("Horizontal", 3))
sketch6.addConstraint(Sketcher.Constraint("Horizontal", 5))
sketch6.addConstraint(Sketcher.Constraint("Horizontal", 7))
sketch6.addConstraint(Sketcher.Constraint("Equal", 2, 4))
sketch6.addConstraint(Sketcher.Constraint("Horizontal", 2, 3, 4, 3))
sketch6.addConstraint(Sketcher.Constraint("Equal", 3, 5))
sketch6.addConstraint(Sketcher.Constraint("DistanceX", 1, 1, 1, 2, 10.0))
sketch6.addConstraint(Sketcher.Constraint("Radius", 0, 2.25))
sketch6.addConstraint(Sketcher.Constraint("DistanceX", 2, 3, 4, 3, 40.0))
sketch6.addConstraint(Sketcher.Constraint("DistanceY", -1, 1, 0, 3, 50.3))
sketch6.addConstraint(Sketcher.Constraint("DistanceX", 0, 3, -1, 1, 131.585733))
pocket4 = doc.addObject("PartDesign::Pocket", "Pocket003")
body.addObject(pocket4)
pocket4.Profile = sketch6
pocket4.Type = "ThroughAll"
pocket4.Reversed = True

# Sketch on XY plane
sketch7 = doc.addObject("Sketcher::SketchObject", "Sketch006")
body.addObject(sketch7)
sketch7.AttachmentSupport = (doc.XY_Plane, [""])
sketch7.MapMode = "FlatFace"
sketch7.addGeometry(Part.Circle(Vector(168, -88, 0), Vector(0, 0, 1), 6), False)
sketch7.addGeometry(Part.Circle(Vector(-136, 82, 0), Vector(0, 0, 1), 6), False)
sketch7.addGeometry(Part.Circle(Vector(47, -17, 0), Vector(0, 0, 1), 6), False)
sketch7.addGeometry(Part.Circle(Vector(136, 11, 0), Vector(0, 0, 1), 6), False)
sketch7.addConstraint(Sketcher.Constraint("Equal", 0, 1))
sketch7.addConstraint(Sketcher.Constraint("Equal", 1, 2))
sketch7.addConstraint(Sketcher.Constraint("Equal", 2, 3))
sketch7.addConstraint(Sketcher.Constraint("Diameter", 0, 11.0))
sketch7.addConstraint(Sketcher.Constraint("DistanceY", 0, 3, -1, 1, 88.0))
sketch7.addConstraint(Sketcher.Constraint("DistanceY", -1, 1, 1, 3, 82.0))
sketch7.addConstraint(Sketcher.Constraint("DistanceX", -1, 1, 2, 3, 47.0))
sketch7.addConstraint(Sketcher.Constraint("DistanceX", -1, 1, 3, 3, 136.0))
sketch7.addConstraint(Sketcher.Constraint("DistanceX", 1, 3, 0, 3, 304.0))
sketch7.addConstraint(Sketcher.Constraint("DistanceX", -1, 1, 0, 3, 168.5))
sketch7.addConstraint(Sketcher.Constraint("DistanceY", 2, 3, -1, 1, 16.7))
sketch7.addConstraint(Sketcher.Constraint("DistanceY", -1, 1, 3, 3, 10.8))
pocket5 = doc.addObject("PartDesign::Pocket", "Pocket004")
body.addObject(pocket5)
pocket5.Profile = sketch7
pocket5.Type = "ThroughAll"
pocket5.Reversed = True

doc.recompute()
